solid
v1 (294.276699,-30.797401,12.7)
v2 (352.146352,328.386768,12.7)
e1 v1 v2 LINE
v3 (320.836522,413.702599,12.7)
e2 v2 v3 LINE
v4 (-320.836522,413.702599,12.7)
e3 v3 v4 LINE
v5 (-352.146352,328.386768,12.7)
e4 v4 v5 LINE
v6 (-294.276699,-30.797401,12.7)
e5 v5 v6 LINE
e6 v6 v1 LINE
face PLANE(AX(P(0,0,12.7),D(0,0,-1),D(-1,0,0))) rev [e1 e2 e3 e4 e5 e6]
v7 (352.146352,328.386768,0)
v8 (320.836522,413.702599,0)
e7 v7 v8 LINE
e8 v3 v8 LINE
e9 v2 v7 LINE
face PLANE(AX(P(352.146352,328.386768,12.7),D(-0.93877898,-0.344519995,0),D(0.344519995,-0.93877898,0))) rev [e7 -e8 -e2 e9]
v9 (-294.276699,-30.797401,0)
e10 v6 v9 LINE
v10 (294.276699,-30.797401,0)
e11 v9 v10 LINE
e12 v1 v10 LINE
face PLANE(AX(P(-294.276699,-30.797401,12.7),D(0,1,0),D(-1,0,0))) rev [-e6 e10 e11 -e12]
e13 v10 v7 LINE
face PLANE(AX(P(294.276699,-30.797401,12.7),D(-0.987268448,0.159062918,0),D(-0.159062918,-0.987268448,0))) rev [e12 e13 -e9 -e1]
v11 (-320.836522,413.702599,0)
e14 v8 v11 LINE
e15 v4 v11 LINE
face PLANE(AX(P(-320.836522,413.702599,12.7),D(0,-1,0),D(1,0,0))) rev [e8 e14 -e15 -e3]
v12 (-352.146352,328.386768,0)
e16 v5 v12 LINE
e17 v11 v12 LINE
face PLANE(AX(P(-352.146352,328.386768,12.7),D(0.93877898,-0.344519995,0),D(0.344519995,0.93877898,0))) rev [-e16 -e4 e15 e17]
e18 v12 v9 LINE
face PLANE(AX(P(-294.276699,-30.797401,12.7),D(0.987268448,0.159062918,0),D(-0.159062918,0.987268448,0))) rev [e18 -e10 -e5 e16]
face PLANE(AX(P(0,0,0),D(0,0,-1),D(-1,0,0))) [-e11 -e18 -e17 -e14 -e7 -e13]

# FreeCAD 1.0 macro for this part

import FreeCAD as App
import Part
import Sketcher
from FreeCAD import Vector
Q = App.Units.Quantity


def add_polygon(sketch, points):
    """Adds a closed chain of lines whose ends are joined by coincident constraints."""
    first, n = sketch.GeometryCount, len(points)
    for a, b in zip(points, points[1:] + points[:1]):
        sketch.addGeometry(Part.LineSegment(App.Vector(*a, 0), App.Vector(*b, 0)), False)
    for i in range(n):
        sketch.addConstraint(Sketcher.Constraint("Coincident", first + i, 2, first + (i + 1) % n, 1))

doc = App.newDocument("Part")
body = doc.addObject("PartDesign::Body", "Body")

sketch1 = body.newObject("Sketcher::SketchObject", "Sketch")
sketch1.AttachmentSupport = (doc.getObject("XY_Plane"), [""])
sketch1.MapMode = "FlatFace"
add_polygon(sketch1, [(320.836522, 413.702599), (-320.836522, 413.702599), (-352.146352, 328.386768), (-294.276699, -30.797401), (294.276699, -30.797401), (352.146352, 328.386768)])
sketch1.addConstraint([
    Sketcher.Constraint("Horizontal", 0),
    Sketcher.Constraint("Horizontal", 3),
    Sketcher.Constraint("Symmetric", 1, 2, 4, 2, -2),
    Sketcher.Constraint("Equal", 2, 4),
    Sketcher.Constraint("Equal", 1, 5),
    Sketcher.Constraint("DistanceY", 2, 2, 0, 2, Q("17.5 in")),
    Sketcher.Constraint("DistanceX", 3, 1, 3, 2, 588.553399),
    Sketcher.Constraint("DistanceY", -1, 1, 0, 2, 413.702599),
    Sketcher.Constraint("Distance", 1, 90.879572),
    Sketcher.Constraint("DistanceX", 0, 2, 0, 1, 641.673045),
    Sketcher.Constraint("DistanceX", 1, 2, -1, 1, 352.146352),
])
pad1 = body.newObject("PartDesign::Pad", "Pad")
pad1.Profile = sketch1
pad1.Length = Q("0.5 in")

doc.recompute()
